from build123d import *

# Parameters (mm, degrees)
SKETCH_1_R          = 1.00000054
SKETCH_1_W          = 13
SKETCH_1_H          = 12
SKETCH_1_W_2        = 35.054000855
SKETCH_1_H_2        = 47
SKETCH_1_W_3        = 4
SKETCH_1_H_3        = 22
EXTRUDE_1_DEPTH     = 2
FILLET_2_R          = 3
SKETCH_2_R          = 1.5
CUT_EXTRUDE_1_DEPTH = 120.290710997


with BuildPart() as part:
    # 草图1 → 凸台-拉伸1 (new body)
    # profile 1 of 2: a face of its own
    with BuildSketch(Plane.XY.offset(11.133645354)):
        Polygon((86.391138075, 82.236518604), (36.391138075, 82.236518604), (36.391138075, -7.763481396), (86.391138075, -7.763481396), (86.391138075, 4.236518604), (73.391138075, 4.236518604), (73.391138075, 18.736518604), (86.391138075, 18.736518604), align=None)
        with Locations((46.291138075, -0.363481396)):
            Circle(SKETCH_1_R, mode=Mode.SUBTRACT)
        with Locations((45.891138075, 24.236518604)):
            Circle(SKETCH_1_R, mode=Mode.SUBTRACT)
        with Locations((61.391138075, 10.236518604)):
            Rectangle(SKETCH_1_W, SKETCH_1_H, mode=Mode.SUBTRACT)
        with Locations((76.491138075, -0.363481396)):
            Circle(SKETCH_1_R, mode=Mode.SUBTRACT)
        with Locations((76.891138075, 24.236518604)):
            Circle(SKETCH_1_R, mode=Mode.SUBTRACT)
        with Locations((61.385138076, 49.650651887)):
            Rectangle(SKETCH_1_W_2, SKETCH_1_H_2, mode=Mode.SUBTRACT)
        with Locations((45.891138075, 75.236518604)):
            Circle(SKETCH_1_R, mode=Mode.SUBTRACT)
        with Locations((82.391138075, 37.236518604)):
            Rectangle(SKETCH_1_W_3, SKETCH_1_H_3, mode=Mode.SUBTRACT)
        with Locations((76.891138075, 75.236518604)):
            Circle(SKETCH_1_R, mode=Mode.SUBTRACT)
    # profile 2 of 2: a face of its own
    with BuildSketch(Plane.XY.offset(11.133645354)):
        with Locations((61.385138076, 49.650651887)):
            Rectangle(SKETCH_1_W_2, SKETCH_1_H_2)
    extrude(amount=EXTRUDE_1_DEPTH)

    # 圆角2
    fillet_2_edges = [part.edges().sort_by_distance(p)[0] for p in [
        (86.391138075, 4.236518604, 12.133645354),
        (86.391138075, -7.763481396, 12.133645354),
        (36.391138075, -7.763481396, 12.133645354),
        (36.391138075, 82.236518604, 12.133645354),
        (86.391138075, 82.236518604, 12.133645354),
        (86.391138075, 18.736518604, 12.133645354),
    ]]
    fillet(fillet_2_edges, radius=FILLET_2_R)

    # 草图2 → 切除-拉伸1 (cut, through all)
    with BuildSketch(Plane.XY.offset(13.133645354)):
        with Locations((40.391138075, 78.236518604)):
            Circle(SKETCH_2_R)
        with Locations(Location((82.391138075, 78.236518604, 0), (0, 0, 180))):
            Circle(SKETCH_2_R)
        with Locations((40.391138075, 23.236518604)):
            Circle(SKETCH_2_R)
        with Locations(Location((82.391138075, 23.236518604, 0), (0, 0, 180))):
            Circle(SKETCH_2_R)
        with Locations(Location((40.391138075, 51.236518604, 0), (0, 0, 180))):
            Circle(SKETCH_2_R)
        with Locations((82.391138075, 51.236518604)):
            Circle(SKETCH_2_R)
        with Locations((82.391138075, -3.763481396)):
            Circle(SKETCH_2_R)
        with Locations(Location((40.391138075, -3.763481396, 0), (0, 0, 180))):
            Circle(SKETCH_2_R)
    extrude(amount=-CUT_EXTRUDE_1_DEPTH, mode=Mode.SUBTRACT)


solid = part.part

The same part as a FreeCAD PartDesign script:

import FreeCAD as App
import Part
import Sketcher
from FreeCAD import Vector


def edges_at(feature, points):
    """Names of the edges that pass closest to the given points."""
    edges = feature.Shape.Edges
    near = lambda p: min(range(len(edges)), key=lambda i: edges[i].distToShape(Part.Vertex(*p))[0])
    return sorted({f"Edge{near(p) + 1}" for p in points})

doc = App.newDocument("Part")
params = doc.addObject("Spreadsheet::Sheet", "Params")
for row, (alias, value) in enumerate([
    ("sketch1_diameter", "2.000001 mm"),
    ("sketch1_width", "50 mm"),
    ("sketch1_width2", "13 mm"),
    ("sketch1_width3", "4 mm"),
    ("sketch1_height", "90 mm"),
    ("pad1_length", "2 mm"),
    ("fillet_radius", "3 mm"),
    ("sketch2_diameter", "3 mm"),
], start=1):
    params.set(f"A{row}", alias)
    params.set(f"B{row}", "=" + value)
    params.setAlias(f"B{row}", alias)

body = doc.addObject("PartDesign::Body", "Body")

# Sketch on XY plane
sketch1 = body.newObject("Sketcher::SketchObject", "Sketch")
sketch1.AttachmentSupport = (doc.getObject("XY_Plane"), [""])
sketch1.MapMode = "FlatFace"
sketch1.AttachmentOffset = App.Placement(Vector(0, 0, 11.133645), App.Rotation())
sketch1.addGeometry([
    Part.LineSegment(Vector(86.4, 82.2, 0), Vector(36.4, 82.2, 0)),  # 0
    Part.LineSegment(Vector(36.4, 82.2, 0), Vector(36.4, -7.8, 0)),  # 1
    Part.LineSegment(Vector(36.4, -7.8, 0), Vector(86.4, -7.8, 0)),  # 2
    Part.LineSegment(Vector(86.4, -7.8, 0), Vector(86.4, 4.2, 0)),  # 3
    Part.LineSegment(Vector(86.4, 4.2, 0), Vector(73.4, 4.2, 0)),  # 4
    Part.LineSegment(Vector(73.4, 4.2, 0), Vector(73.4, 18.7, 0)),  # 5
    Part.LineSegment(Vector(73.4, 18.7, 0), Vector(86.4, 18.7, 0)),  # 6
    Part.LineSegment(Vector(86.4, 18.7, 0), Vector(86.4, 82.2, 0)),  # 7
    Part.Circle(Vector(46.3, -0.4, 0), Vector(0, 0, 1), 1),  # 8
    Part.LineSegment(Vector(67.9, 4.2, 0), Vector(54.9, 4.2, 0)),  # 9
    Part.LineSegment(Vector(54.9, 4.2, 0), Vector(54.9, 16.2, 0)),  # 10
    Part.LineSegment(Vector(54.9, 16.2, 0), Vector(67.9, 16.2, 0)),  # 11
    Part.LineSegment(Vector(67.9, 16.2, 0), Vector(67.9, 4.2, 0)),  # 12
    Part.Circle(Vector(45.9, 24.2, 0), Vector(0, 0, 1), 1),  # 13
    Part.Circle(Vector(76.5, -0.4, 0), Vector(0, 0, 1), 1),  # 14
    Part.Circle(Vector(76.9, 24.2, 0), Vector(0, 0, 1), 1),  # 15
    Part.LineSegment(Vector(84.4, 26.2, 0), Vector(80.4, 26.2, 0)),  # 16
    Part.LineSegment(Vector(80.4, 26.2, 0), Vector(80.4, 48.2, 0)),  # 17
    Part.LineSegment(Vector(80.4, 48.2, 0), Vector(84.4, 48.2, 0)),  # 18
    Part.LineSegment(Vector(84.4, 48.2, 0), Vector(84.4, 26.2, 0)),  # 19
    Part.Circle(Vector(45.9, 75.2, 0), Vector(0, 0, 1), 1),  # 20
    Part.Circle(Vector(76.9, 75.2, 0), Vector(0, 0, 1), 1),  # 21
], False)
sketch1.addConstraint([
    Sketcher.Constraint("Coincident", 0, 2, 1, 1),
    Sketcher.Constraint("Coincident", 1, 2, 2, 1),
    Sketcher.Constraint("Coincident", 2, 2, 3, 1),
    Sketcher.Constraint("Coincident", 3, 2, 4, 1),
    Sketcher.Constraint("Coincident", 4, 2, 5, 1),
    Sketcher.Constraint("Coincident", 5, 2, 6, 1),
    Sketcher.Constraint("Coincident", 6, 2, 7, 1),
    Sketcher.Constraint("Coincident", 7, 2, 0, 1),
    Sketcher.Constraint("Coincident", 9, 2, 10, 1),
    Sketcher.Constraint("Coincident", 10, 2, 11, 1),
    Sketcher.Constraint("Coincident", 11, 2, 12, 1),
    Sketcher.Constraint("Coincident", 12, 2, 9, 1),
    Sketcher.Constraint("Coincident", 16, 2, 17, 1),
    Sketcher.Constraint("Coincident", 17, 2, 18, 1),
    Sketcher.Constraint("Coincident", 18, 2, 19, 1),
    Sketcher.Constraint("Coincident", 19, 2, 16, 1),
    Sketcher.Constraint("Horizontal", 0),
    Sketcher.Constraint("Vertical", 1),
    Sketcher.Constraint("Horizontal", 2),
    Sketcher.Constraint("Vertical", 3),
    Sketcher.Constraint("Horizontal", 4),
    Sketcher.Constraint("Vertical", 5),
    Sketcher.Constraint("Horizontal", 6),
    Sketcher.Constraint("Vertical", 7),
    Sketcher.Constraint("Horizontal", 9),
    Sketcher.Constraint("Vertical", 10),
    Sketcher.Constraint("Horizontal", 11),
    Sketcher.Constraint("Vertical", 12),
    Sketcher.Constraint("Horizontal", 16),
    Sketcher.Constraint("Vertical", 17),
    Sketcher.Constraint("Horizontal", 18),
    Sketcher.Constraint("Vertical", 19),
    Sketcher.Constraint("Equal", 8, 13),
    Sketcher.Constraint("Equal", 13, 14),
    Sketcher.Constraint("Equal", 14, 15),
    Sketcher.Constraint("Equal", 15, 20),
    Sketcher.Constraint("Equal", 20, 21),
    Sketcher.Constraint("Horizontal", 8, 3, 14, 3),
    Sketcher.Constraint("Horizontal", 13, 3, 15, 3),
    Sketcher.Constraint("Horizontal", 20, 3, 21, 3),
    Sketcher.Constraint("Horizontal", 4, 2, 9, 2),
    Sketcher.Constraint("Vertical", 13, 3, 20, 3),
    Sketcher.Constraint("Vertical", 15, 3, 21, 3),
    Sketcher.Constraint("Vertical", 3, 2, 6, 2),
    Sketcher.Constraint("Equal", 6, 9),
    Sketcher.Constraint("Equal", 3, 10),
    Sketcher.Constraint("Diameter", 8, 2.000001),
    Sketcher.Constraint("DistanceX", 0, 2, 0, 1, 50.0),
    Sketcher.Constraint("DistanceX", 4, 2, 4, 1, 13.0),
    Sketcher.Constraint("DistanceX", 16, 2, 16, 1, 4.0),
    Sketcher.Constraint("DistanceY", 1, 2, 1, 1, 90.0),
    Sketcher.Constraint("DistanceY", 3, 1, 3, 2, 12.0),
    Sketcher.Constraint("DistanceY", 17, 1, 17, 2, 22.0),
    Sketcher.Constraint("DistanceY", 5, 1, 5, 2, 14.5),
    Sketcher.Constraint("DistanceX", 13, 3, 15, 3, 31.0),
    Sketcher.Constraint("DistanceY", 13, 3, 20, 3, 51.0),
    Sketcher.Constraint("DistanceY", 20, 3, 0, 2, 7.0),
    Sketcher.Constraint("DistanceX", 13, 3, 9, 2, 9.0),
    Sketcher.Constraint("DistanceY", 15, 3, 16, 2, 2.0),
    Sketcher.Constraint("DistanceX", 16, 2, 6, 2, 6.0),
    Sketcher.Constraint("DistanceX", 13, 3, 8, 3, 0.4),
    Sketcher.Constraint("DistanceY", 8, 3, 13, 3, 24.6),
    Sketcher.Constraint("DistanceX", 8, 3, 14, 3, 30.2),
    Sketcher.Constraint("DistanceX", 0, 2, 20, 3, 9.5),
    Sketcher.Constraint("DistanceX", -1, 1, 8, 3, 46.291138),
    Sketcher.Constraint("DistanceY", 8, 3, -1, 1, 0.363481),
])
sketch1.setExpression("Constraints[46]", "Params.sketch1_diameter")
sketch1.setExpression("Constraints[47]", "Params.sketch1_width")
sketch1.setExpression("Constraints[48]", "Params.sketch1_width2")
sketch1.setExpression("Constraints[49]", "Params.sketch1_width3")
sketch1.setExpression("Constraints[50]", "Params.sketch1_height")
pad1 = body.newObject("PartDesign::Pad", "Pad")
pad1.Profile = sketch1
pad1.setExpression("Length", "Params.pad1_length")
doc.recompute()

fillet = body.newObject("PartDesign::Fillet", "Fillet")
fillet.Base = (pad1, edges_at(pad1, [
    (86.391, 4.237, 12.134),
    (86.391, -7.763, 12.134),
    (36.391, -7.763, 12.134),
    (36.391, 82.237, 12.134),
    (86.391, 82.237, 12.134),
    (86.391, 18.737, 12.134),
]))
fillet.setExpression("Radius", "Params.fillet_radius")

# Sketch on XY plane
sketch2 = body.newObject("Sketcher::SketchObject", "Sketch001")
sketch2.AttachmentSupport = (doc.getObject("XY_Plane"), [""])
sketch2.MapMode = "FlatFace"
sketch2.AttachmentOffset = App.Placement(Vector(0, 0, 13.133645), App.Rotation())
sketch2.addGeometry([
    Part.Circle(Vector(40.4, 78.2, 0), Vector(0, 0, 1), 1.5),  # 0
    Part.Circle(Vector(82.4, 78.2, 0), Vector(0, 0, 1), 1.5),  # 1
    Part.Circle(Vector(40.4, 23.2, 0), Vector(0, 0, 1), 1.5),  # 2
    Part.Circle(Vector(82.4, 23.2, 0), Vector(0, 0, 1), 1.5),  # 3
    Part.Circle(Vector(40.4, 51.2, 0), Vector(0, 0, 1), 1.5),  # 4
    Part.Circle(Vector(82.4, 51.2, 0), Vector(0, 0, 1), 1.5),  # 5
    Part.Circle(Vector(82.4, -3.8, 0), Vector(0, 0, 1), 1.5),  # 6
    Part.Circle(Vector(40.4, -3.8, 0), Vector(0, 0, 1), 1.5),  # 7
], False)
sketch2.addConstraint([
    Sketcher.Constraint("Equal", 0, 1),
    Sketcher.Constraint("Equal", 1, 2),
    Sketcher.Constraint("Equal", 2, 3),
    Sketcher.Constraint("Equal", 3, 4),
    Sketcher.Constraint("Equal", 4, 5),
    Sketcher.Constraint("Equal", 5, 6),
    Sketcher.Constraint("Equal", 6, 7),
    Sketcher.Constraint("Horizontal", 0, 3, 1, 3),
    Sketcher.Constraint("Horizontal", 2, 3, 3, 3),
    Sketcher.Constraint("Horizontal", 4, 3, 5, 3),
    Sketcher.Constraint("Horizontal", 6, 3, 7, 3),
    Sketcher.Constraint("Vertical", 0, 3, 2, 3),
    Sketcher.Constraint("Vertical", 1, 3, 3, 3),
    Sketcher.Constraint("Vertical", 2, 3, 4, 3),
    Sketcher.Constraint("Vertical", 3, 3, 5, 3),
    Sketcher.Constraint("Vertical", 5, 3, 6, 3),
    Sketcher.Constraint("Vertical", 4, 3, 7, 3),
    Sketcher.Constraint("Diameter", 0, 3.0),
    Sketcher.Constraint("DistanceX", 0, 3, 1, 3, 42.0),
    Sketcher.Constraint("DistanceY", 2, 3, 0, 3, 55.0),
    Sketcher.Constraint("DistanceY", 4, 3, 0, 3, 27.0),
    Sketcher.Constraint("DistanceY", 6, 3, 3, 3, 27.0),
    Sketcher.Constraint("DistanceX", -1, 1, 0, 3, 40.391138),
    Sketcher.Constraint("DistanceY", -1, 1, 0, 3, 78.236519),
])
sketch2.setExpression("Constraints[17]", "Params.sketch2_diameter")
pocket1 = body.newObject("PartDesign::Pocket", "Pocket")
pocket1.Profile = sketch2
pocket1.Type = "ThroughAll"

doc.recompute()
